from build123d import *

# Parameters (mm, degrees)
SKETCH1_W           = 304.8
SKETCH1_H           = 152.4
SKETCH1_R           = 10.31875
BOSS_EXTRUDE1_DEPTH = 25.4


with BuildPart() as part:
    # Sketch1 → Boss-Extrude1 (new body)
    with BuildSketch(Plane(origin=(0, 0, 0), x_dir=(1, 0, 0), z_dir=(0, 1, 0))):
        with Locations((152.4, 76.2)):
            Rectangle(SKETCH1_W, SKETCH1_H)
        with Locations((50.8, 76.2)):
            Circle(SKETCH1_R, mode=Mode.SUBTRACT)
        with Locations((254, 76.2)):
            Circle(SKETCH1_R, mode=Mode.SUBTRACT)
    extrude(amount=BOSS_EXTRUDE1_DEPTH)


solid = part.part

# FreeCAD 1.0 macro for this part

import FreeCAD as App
import Part
import Sketcher

V = App.Vector
Q = App.Units.Quantity

doc = App.newDocument("Part")
body = doc.addObject("PartDesign::Body", "Body")

sketch1 = body.newObject("Sketcher::SketchObject", "Sketch")
sketch1.AttachmentSupport = (doc.getObject("XZ_Plane"), [""])
sketch1.MapMode = "FlatFace"
sketch1.addGeometry(Part.LineSegment(V(0, -152, 0), V(0, 0, 0)), False)
sketch1.addGeometry(Part.LineSegment(V(0, 0, 0), V(305, 0, 0)), False)
sketch1.addGeometry(Part.LineSegment(V(305, 0, 0), V(305, -152, 0)), False)
sketch1.addGeometry(Part.LineSegment(V(305, -152, 0), V(0, -152, 0)), False)
sketch1.addGeometry(Part.Circle(V(51, -76, 0), V(0, 0, 1), 10), False)
sketch1.addGeometry(Part.Circle(V(254, -76, 0), V(0, 0, 1), 10), False)
sketch1.addConstraint(Sketcher.Constraint("Coincident", 0, 2, 1, 1))
sketch1.addConstraint(Sketcher.Constraint("Coincident", 1, 2, 2, 1))
sketch1.addConstraint(Sketcher.Constraint("Coincident", 2, 2, 3, 1))
sketch1.addConstraint(Sketcher.Constraint("Coincident", 3, 2, 0, 1))
sketch1.addConstraint(Sketcher.Constraint("Vertical", 0))
sketch1.addConstraint(Sketcher.Constraint("Horizontal", 1))
sketch1.addConstraint(Sketcher.Constraint("Vertical", 2))
sketch1.addConstraint(Sketcher.Constraint("Horizontal", 3))
sketch1.addConstraint(Sketcher.Constraint("Coincident", 0, 2, -1, 1))
sketch1.addConstraint(Sketcher.Constraint("Equal", 4, 5))
sketch1.addConstraint(Sketcher.Constraint("Horizontal", 4, 3, 5, 3))
sketch1.addConstraint(Sketcher.Constraint("DistanceX", 1, 1, 1, 2, Q("12 in")))
sketch1.addConstraint(Sketcher.Constraint("DistanceY", 0, 1, 0, 2, Q("6 in")))
sketch1.addConstraint(Sketcher.Constraint("Diameter", 4, Q("0.8125 in")))
sketch1.addConstraint(Sketcher.Constraint("DistanceX", -1, 1, 4, 3, Q("2 in")))
sketch1.addConstraint(Sketcher.Constraint("DistanceY", 4, 3, -1, 1, Q("3 in")))
sketch1.addConstraint(Sketcher.Constraint("DistanceX", -1, 1, 5, 3, Q("10 in")))
pad1 = body.newObject("PartDesign::Pad", "Pad")
pad1.Profile = sketch1
pad1.Length = Q("1 in")
pad1.Reversed = True

doc.recompute()
